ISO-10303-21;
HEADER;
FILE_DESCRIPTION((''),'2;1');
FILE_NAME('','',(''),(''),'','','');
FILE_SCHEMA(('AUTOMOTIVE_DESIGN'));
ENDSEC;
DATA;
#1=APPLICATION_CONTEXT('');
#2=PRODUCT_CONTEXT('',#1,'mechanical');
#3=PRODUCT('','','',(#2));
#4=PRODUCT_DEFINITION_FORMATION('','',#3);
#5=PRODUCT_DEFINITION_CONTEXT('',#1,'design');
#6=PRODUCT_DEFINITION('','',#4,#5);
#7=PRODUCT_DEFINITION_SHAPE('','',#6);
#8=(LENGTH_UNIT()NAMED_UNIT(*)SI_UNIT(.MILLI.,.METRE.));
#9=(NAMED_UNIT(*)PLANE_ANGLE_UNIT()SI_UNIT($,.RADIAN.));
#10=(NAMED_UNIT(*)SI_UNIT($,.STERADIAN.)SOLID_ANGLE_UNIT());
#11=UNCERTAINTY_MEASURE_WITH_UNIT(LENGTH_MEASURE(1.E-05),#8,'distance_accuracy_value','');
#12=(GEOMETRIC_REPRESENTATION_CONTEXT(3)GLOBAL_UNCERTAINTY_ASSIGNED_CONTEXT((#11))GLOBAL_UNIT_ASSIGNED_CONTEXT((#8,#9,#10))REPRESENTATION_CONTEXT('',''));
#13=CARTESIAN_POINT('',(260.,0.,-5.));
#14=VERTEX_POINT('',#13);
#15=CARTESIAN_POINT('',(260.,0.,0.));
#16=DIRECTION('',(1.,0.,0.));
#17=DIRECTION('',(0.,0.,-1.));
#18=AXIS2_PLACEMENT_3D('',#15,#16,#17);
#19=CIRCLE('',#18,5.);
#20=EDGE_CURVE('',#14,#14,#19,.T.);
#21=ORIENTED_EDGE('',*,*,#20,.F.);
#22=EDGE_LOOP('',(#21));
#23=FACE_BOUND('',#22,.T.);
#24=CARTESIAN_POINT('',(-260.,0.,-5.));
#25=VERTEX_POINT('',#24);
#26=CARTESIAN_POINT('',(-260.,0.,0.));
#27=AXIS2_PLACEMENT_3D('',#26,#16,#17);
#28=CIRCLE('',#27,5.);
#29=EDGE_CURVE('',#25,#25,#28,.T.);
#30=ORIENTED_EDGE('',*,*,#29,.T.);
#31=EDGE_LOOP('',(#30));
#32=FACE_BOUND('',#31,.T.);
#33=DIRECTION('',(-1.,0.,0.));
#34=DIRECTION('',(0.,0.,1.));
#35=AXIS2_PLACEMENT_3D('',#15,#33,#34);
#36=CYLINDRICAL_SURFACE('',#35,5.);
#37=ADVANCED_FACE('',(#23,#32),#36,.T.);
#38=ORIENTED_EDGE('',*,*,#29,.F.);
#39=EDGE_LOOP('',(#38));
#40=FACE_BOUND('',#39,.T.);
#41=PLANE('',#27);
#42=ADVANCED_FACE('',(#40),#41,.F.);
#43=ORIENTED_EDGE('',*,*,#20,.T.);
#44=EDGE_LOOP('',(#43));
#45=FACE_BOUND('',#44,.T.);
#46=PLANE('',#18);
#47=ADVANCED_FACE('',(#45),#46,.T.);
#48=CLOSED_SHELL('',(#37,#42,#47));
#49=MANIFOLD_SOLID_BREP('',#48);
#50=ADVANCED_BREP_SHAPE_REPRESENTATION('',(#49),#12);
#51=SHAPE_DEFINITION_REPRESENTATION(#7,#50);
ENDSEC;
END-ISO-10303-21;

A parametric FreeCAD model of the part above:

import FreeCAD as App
import Part
import Sketcher
from FreeCAD import Vector
Q = App.Units.Quantity

doc = App.newDocument("Part")
body = doc.addObject("PartDesign::Body", "Body")

sketch1 = body.newObject("Sketcher::SketchObject", "Sketch")
sketch1.AttachmentSupport = (doc.getObject("YZ_Plane"), [""])
sketch1.MapMode = "FlatFace"
sketch1.addGeometry(Part.Circle(Vector(0, 0, 0), Vector(0, 0, 1), 5), False)
sketch1.addConstraint(Sketcher.Constraint("Coincident", 0, 3, -1, 1))
sketch1.addConstraint(Sketcher.Constraint("Diameter", 0, Q("10 mm")))
pad1 = body.newObject("PartDesign::Pad", "Pad")
pad1.Profile = sketch1
pad1.Length = 520
pad1.Midplane = True

doc.recompute()
